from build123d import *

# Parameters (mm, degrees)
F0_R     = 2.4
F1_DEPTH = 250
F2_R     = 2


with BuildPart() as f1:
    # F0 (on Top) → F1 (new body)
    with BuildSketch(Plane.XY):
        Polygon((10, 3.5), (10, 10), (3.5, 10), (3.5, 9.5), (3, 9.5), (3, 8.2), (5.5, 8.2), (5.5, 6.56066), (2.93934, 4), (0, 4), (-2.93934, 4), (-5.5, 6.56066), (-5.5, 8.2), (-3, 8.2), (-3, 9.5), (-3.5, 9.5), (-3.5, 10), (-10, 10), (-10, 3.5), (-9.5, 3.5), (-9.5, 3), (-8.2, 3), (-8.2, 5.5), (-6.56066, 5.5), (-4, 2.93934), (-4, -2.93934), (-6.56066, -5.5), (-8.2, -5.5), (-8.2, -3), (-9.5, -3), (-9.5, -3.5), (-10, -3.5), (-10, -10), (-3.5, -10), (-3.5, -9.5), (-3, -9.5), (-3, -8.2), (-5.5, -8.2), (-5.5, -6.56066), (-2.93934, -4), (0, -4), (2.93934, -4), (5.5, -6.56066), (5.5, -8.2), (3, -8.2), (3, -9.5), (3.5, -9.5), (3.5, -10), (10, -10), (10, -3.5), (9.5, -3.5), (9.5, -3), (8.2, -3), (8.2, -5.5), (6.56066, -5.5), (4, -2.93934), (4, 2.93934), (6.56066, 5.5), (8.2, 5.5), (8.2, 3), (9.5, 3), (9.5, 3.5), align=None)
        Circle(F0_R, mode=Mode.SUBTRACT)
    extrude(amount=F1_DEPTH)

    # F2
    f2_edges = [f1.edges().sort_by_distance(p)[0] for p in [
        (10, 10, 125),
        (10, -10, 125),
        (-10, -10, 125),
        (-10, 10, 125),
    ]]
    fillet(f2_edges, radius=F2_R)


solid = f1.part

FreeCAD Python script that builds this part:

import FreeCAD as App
import Part
import Sketcher

V = App.Vector
Q = App.Units.Quantity


def edges_at(feature, points):
    """Names of the edges that pass closest to the given points."""
    edges = feature.Shape.Edges
    near = lambda p: min(range(len(edges)), key=lambda i: edges[i].distToShape(Part.Vertex(*p))[0])
    return sorted({f"Edge{near(p) + 1}" for p in points})

doc = App.newDocument("Part")
body = doc.addObject("PartDesign::Body", "Body")

sketch1 = body.newObject("Sketcher::SketchObject", "Sketch")
sketch1.AttachmentSupport = (doc.getObject("XY_Plane"), [""])
sketch1.MapMode = "FlatFace"
sketch1.addGeometry([
    Part.LineSegment(V(10, 3.5, 0), V(10, 10, 0)),
    Part.LineSegment(V(10, 10, 0), V(3.5, 10, 0)),
    Part.LineSegment(V(3.5, 10, 0), V(3.5, 9.5, 0)),
    Part.LineSegment(V(3.5, 9.5, 0), V(3, 9.5, 0)),
    Part.LineSegment(V(3, 9.5, 0), V(3, 8.2, 0)),
    Part.LineSegment(V(3, 8.2, 0), V(5.5, 8.2, 0)),
    Part.LineSegment(V(5.5, 8.2, 0), V(5.5, 6.56066, 0)),
    Part.LineSegment(V(5.5, 6.56066, 0), V(2.93934, 4, 0)),
    Part.LineSegment(V(2.93934, 4, 0), V(-2.93934, 4, 0)),
    Part.LineSegment(V(-2.93934, 4, 0), V(-5.5, 6.56066, 0)),
    Part.LineSegment(V(-5.5, 6.56066, 0), V(-5.5, 8.2, 0)),
    Part.LineSegment(V(-5.5, 8.2, 0), V(-3, 8.2, 0)),
    Part.LineSegment(V(-3, 8.2, 0), V(-3, 9.5, 0)),
    Part.LineSegment(V(-3, 9.5, 0), V(-3.5, 9.5, 0)),
    Part.LineSegment(V(-3.5, 9.5, 0), V(-3.5, 10, 0)),
    Part.LineSegment(V(-3.5, 10, 0), V(-10, 10, 0)),
    Part.LineSegment(V(-10, 10, 0), V(-10, 3.5, 0)),
    Part.LineSegment(V(-10, 3.5, 0), V(-9.5, 3.5, 0)),
    Part.LineSegment(V(-9.5, 3.5, 0), V(-9.5, 3, 0)),
    Part.LineSegment(V(-9.5, 3, 0), V(-8.2, 3, 0)),
    Part.LineSegment(V(-8.2, 3, 0), V(-8.2, 5.5, 0)),
    Part.LineSegment(V(-8.2, 5.5, 0), V(-6.56066, 5.5, 0)),
    Part.LineSegment(V(-6.56066, 5.5, 0), V(-4, 2.93934, 0)),
    Part.LineSegment(V(-4, 2.93934, 0), V(-4, -2.93934, 0)),
    Part.LineSegment(V(-4, -2.93934, 0), V(-6.56066, -5.5, 0)),
    Part.LineSegment(V(-6.56066, -5.5, 0), V(-8.2, -5.5, 0)),
    Part.LineSegment(V(-8.2, -5.5, 0), V(-8.2, -3, 0)),
    Part.LineSegment(V(-8.2, -3, 0), V(-9.5, -3, 0)),
    Part.LineSegment(V(-9.5, -3, 0), V(-9.5, -3.5, 0)),
    Part.LineSegment(V(-9.5, -3.5, 0), V(-10, -3.5, 0)),
    Part.LineSegment(V(-10, -3.5, 0), V(-10, -10, 0)),
    Part.LineSegment(V(-10, -10, 0), V(-3.5, -10, 0)),
    Part.LineSegment(V(-3.5, -10, 0), V(-3.5, -9.5, 0)),
    Part.LineSegment(V(-3.5, -9.5, 0), V(-3, -9.5, 0)),
    Part.LineSegment(V(-3, -9.5, 0), V(-3, -8.2, 0)),
    Part.LineSegment(V(-3, -8.2, 0), V(-5.5, -8.2, 0)),
    Part.LineSegment(V(-5.5, -8.2, 0), V(-5.5, -6.56066, 0)),
    Part.LineSegment(V(-5.5, -6.56066, 0), V(-2.93934, -4, 0)),
    Part.LineSegment(V(-2.93934, -4, 0), V(2.93934, -4, 0)),
    Part.LineSegment(V(2.93934, -4, 0), V(5.5, -6.56066, 0)),
    Part.LineSegment(V(5.5, -6.56066, 0), V(5.5, -8.2, 0)),
    Part.LineSegment(V(5.5, -8.2, 0), V(3, -8.2, 0)),
    Part.LineSegment(V(3, -8.2, 0), V(3, -9.5, 0)),
    Part.LineSegment(V(3, -9.5, 0), V(3.5, -9.5, 0)),
    Part.LineSegment(V(3.5, -9.5, 0), V(3.5, -10, 0)),
    Part.LineSegment(V(3.5, -10, 0), V(10, -10, 0)),
    Part.LineSegment(V(10, -10, 0), V(10, -3.5, 0)),
    Part.LineSegment(V(10, -3.5, 0), V(9.5, -3.5, 0)),
    Part.LineSegment(V(9.5, -3.5, 0), V(9.5, -3, 0)),
    Part.LineSegment(V(9.5, -3, 0), V(8.2, -3, 0)),
    Part.LineSegment(V(8.2, -3, 0), V(8.2, -5.5, 0)),
    Part.LineSegment(V(8.2, -5.5, 0), V(6.56066, -5.5, 0)),
    Part.LineSegment(V(6.56066, -5.5, 0), V(4, -2.93934, 0)),
    Part.LineSegment(V(4, -2.93934, 0), V(4, 2.93934, 0)),
    Part.LineSegment(V(4, 2.93934, 0), V(6.56066, 5.5, 0)),
    Part.LineSegment(V(6.56066, 5.5, 0), V(8.2, 5.5, 0)),
    Part.LineSegment(V(8.2, 5.5, 0), V(8.2, 3, 0)),
    Part.LineSegment(V(8.2, 3, 0), V(9.5, 3, 0)),
    Part.LineSegment(V(9.5, 3, 0), V(9.5, 3.5, 0)),
    Part.LineSegment(V(9.5, 3.5, 0), V(10, 3.5, 0)),
    Part.Circle(V(0, 0, 0), V(0, 0, 1), 2.4),
], False)
sketch1.addConstraint([
    Sketcher.Constraint("Coincident", 0, 2, 1, 1),
    Sketcher.Constraint("Coincident", 1, 2, 2, 1),
    Sketcher.Constraint("Coincident", 2, 2, 3, 1),
    Sketcher.Constraint("Coincident", 3, 2, 4, 1),
    Sketcher.Constraint("Coincident", 4, 2, 5, 1),
    Sketcher.Constraint("Coincident", 5, 2, 6, 1),
    Sketcher.Constraint("Coincident", 6, 2, 7, 1),
    Sketcher.Constraint("Coincident", 7, 2, 8, 1),
    Sketcher.Constraint("Coincident", 8, 2, 9, 1),
    Sketcher.Constraint("Coincident", 9, 2, 10, 1),
    Sketcher.Constraint("Coincident", 10, 2, 11, 1),
    Sketcher.Constraint("Coincident", 11, 2, 12, 1),
    Sketcher.Constraint("Coincident", 12, 2, 13, 1),
    Sketcher.Constraint("Coincident", 13, 2, 14, 1),
    Sketcher.Constraint("Coincident", 14, 2, 15, 1),
    Sketcher.Constraint("Coincident", 15, 2, 16, 1),
    Sketcher.Constraint("Coincident", 16, 2, 17, 1),
    Sketcher.Constraint("Coincident", 17, 2, 18, 1),
    Sketcher.Constraint("Coincident", 18, 2, 19, 1),
    Sketcher.Constraint("Coincident", 19, 2, 20, 1),
    Sketcher.Constraint("Coincident", 20, 2, 21, 1),
    Sketcher.Constraint("Coincident", 21, 2, 22, 1),
    Sketcher.Constraint("Coincident", 22, 2, 23, 1),
    Sketcher.Constraint("Coincident", 23, 2, 24, 1),
    Sketcher.Constraint("Coincident", 24, 2, 25, 1),
    Sketcher.Constraint("Coincident", 25, 2, 26, 1),
    Sketcher.Constraint("Coincident", 26, 2, 27, 1),
    Sketcher.Constraint("Coincident", 27, 2, 28, 1),
    Sketcher.Constraint("Coincident", 28, 2, 29, 1),
    Sketcher.Constraint("Coincident", 29, 2, 30, 1),
    Sketcher.Constraint("Coincident", 30, 2, 31, 1),
    Sketcher.Constraint("Coincident", 31, 2, 32, 1),
    Sketcher.Constraint("Coincident", 32, 2, 33, 1),
    Sketcher.Constraint("Coincident", 33, 2, 34, 1),
    Sketcher.Constraint("Coincident", 34, 2, 35, 1),
    Sketcher.Constraint("Coincident", 35, 2, 36, 1),
    Sketcher.Constraint("Coincident", 36, 2, 37, 1),
    Sketcher.Constraint("Coincident", 37, 2, 38, 1),
    Sketcher.Constraint("Coincident", 38, 2, 39, 1),
    Sketcher.Constraint("Coincident", 39, 2, 40, 1),
    Sketcher.Constraint("Coincident", 40, 2, 41, 1),
    Sketcher.Constraint("Coincident", 41, 2, 42, 1),
    Sketcher.Constraint("Coincident", 42, 2, 43, 1),
    Sketcher.Constraint("Coincident", 43, 2, 44, 1),
    Sketcher.Constraint("Coincident", 44, 2, 45, 1),
    Sketcher.Constraint("Coincident", 45, 2, 46, 1),
    Sketcher.Constraint("Coincident", 46, 2, 47, 1),
    Sketcher.Constraint("Coincident", 47, 2, 48, 1),
    Sketcher.Constraint("Coincident", 48, 2, 49, 1),
    Sketcher.Constraint("Coincident", 49, 2, 50, 1),
    Sketcher.Constraint("Coincident", 50, 2, 51, 1),
    Sketcher.Constraint("Coincident", 51, 2, 52, 1),
    Sketcher.Constraint("Coincident", 52, 2, 53, 1),
    Sketcher.Constraint("Coincident", 53, 2, 54, 1),
    Sketcher.Constraint("Coincident", 54, 2, 55, 1),
    Sketcher.Constraint("Coincident", 55, 2, 56, 1),
    Sketcher.Constraint("Coincident", 56, 2, 57, 1),
    Sketcher.Constraint("Coincident", 57, 2, 58, 1),
    Sketcher.Constraint("Coincident", 58, 2, 59, 1),
    Sketcher.Constraint("Coincident", 59, 2, 0, 1),
    Sketcher.Constraint("Vertical", 0),
    Sketcher.Constraint("Horizontal", 1),
    Sketcher.Constraint("Vertical", 2),
    Sketcher.Constraint("Horizontal", 3),
    Sketcher.Constraint("Vertical", 4),
    Sketcher.Constraint("Horizontal", 5),
    Sketcher.Constraint("Vertical", 6),
    Sketcher.Constraint("Horizontal", 8),
    Sketcher.Constraint("Vertical", 10),
    Sketcher.Constraint("Horizontal", 11),
    Sketcher.Constraint("Vertical", 12),
    Sketcher.Constraint("Horizontal", 13),
    Sketcher.Constraint("Vertical", 14),
    Sketcher.Constraint("Horizontal", 15),
    Sketcher.Constraint("Vertical", 16),
    Sketcher.Constraint("Horizontal", 17),
    Sketcher.Constraint("Vertical", 18),
    Sketcher.Constraint("Horizontal", 19),
    Sketcher.Constraint("Vertical", 20),
    Sketcher.Constraint("Horizontal", 21),
    Sketcher.Constraint("Vertical", 23),
    Sketcher.Constraint("Horizontal", 25),
    Sketcher.Constraint("Vertical", 26),
    Sketcher.Constraint("Horizontal", 27),
    Sketcher.Constraint("Vertical", 28),
    Sketcher.Constraint("Horizontal", 29),
    Sketcher.Constraint("Vertical", 30),
    Sketcher.Constraint("Horizontal", 31),
    Sketcher.Constraint("Vertical", 32),
    Sketcher.Constraint("Horizontal", 33),
    Sketcher.Constraint("Vertical", 34),
    Sketcher.Constraint("Horizontal", 35),
    Sketcher.Constraint("Vertical", 36),
    Sketcher.Constraint("Horizontal", 38),
    Sketcher.Constraint("Vertical", 40),
    Sketcher.Constraint("Horizontal", 41),
    Sketcher.Constraint("Vertical", 42),
    Sketcher.Constraint("Horizontal", 43),
    Sketcher.Constraint("Vertical", 44),
    Sketcher.Constraint("Horizontal", 45),
    Sketcher.Constraint("Vertical", 46),
    Sketcher.Constraint("Horizontal", 47),
    Sketcher.Constraint("Vertical", 48),
    Sketcher.Constraint("Horizontal", 49),
    Sketcher.Constraint("Vertical", 50),
    Sketcher.Constraint("Horizontal", 51),
    Sketcher.Constraint("Vertical", 53),
    Sketcher.Constraint("Horizontal", 55),
    Sketcher.Constraint("Vertical", 56),
    Sketcher.Constraint("Horizontal", 57),
    Sketcher.Constraint("Vertical", 58),
    Sketcher.Constraint("Horizontal", 59),
    Sketcher.Constraint("Coincident", 60, 3, -1, 1),
    Sketcher.Constraint("Symmetric", 0, 2, 30, 2, -1, 1),
    Sketcher.Constraint("Symmetric", 2, 2, 32, 2, -1, 1),
    Sketcher.Constraint("Symmetric", 4, 2, 34, 2, -1, 1),
    Sketcher.Constraint("Symmetric", 6, 2, 36, 2, -1, 1),
    Sketcher.Constraint("Symmetric", 7, 2, 37, 2, -1, 1),
    Sketcher.Constraint("Symmetric", 9, 2, 39, 2, -1, 1),
    Sketcher.Constraint("Symmetric", 11, 2, 41, 2, -1, 1),
    Sketcher.Constraint("Symmetric", 13, 2, 43, 2, -1, 1),
    Sketcher.Constraint("Symmetric", 15, 2, 45, 2, -1, 1),
    Sketcher.Constraint("Symmetric", 17, 2, 47, 2, -1, 1),
    Sketcher.Constraint("Symmetric", 19, 2, 49, 2, -1, 1),
    Sketcher.Constraint("Symmetric", 21, 2, 51, 2, -1, 1),
    Sketcher.Constraint("Symmetric", 22, 2, 52, 2, -1, 1),
    Sketcher.Constraint("Symmetric", 24, 2, 54, 2, -1, 1),
    Sketcher.Constraint("Symmetric", 26, 2, 56, 2, -1, 1),
    Sketcher.Constraint("Symmetric", 28, 2, 58, 2, -1, 1),
    Sketcher.Constraint("Symmetric", 6, 2, 9, 2, -2),
    Sketcher.Constraint("Symmetric", 4, 2, 11, 2, -2),
    Sketcher.Constraint("Symmetric", 2, 2, 13, 2, -2),
    Sketcher.Constraint("Symmetric", 0, 2, 15, 2, -2),
    Sketcher.Constraint("Symmetric", 28, 2, 47, 2, -2),
    Sketcher.Constraint("Symmetric", 26, 2, 49, 2, -2),
    Sketcher.Constraint("Symmetric", 24, 2, 51, 2, -2),
    Sketcher.Constraint("Perpendicular", 7, 9),
    Sketcher.Constraint("Parallel", 9, 22),
    Sketcher.Constraint("Perpendicular", 22, 24),
    Sketcher.Constraint("Perpendicular", 37, 39),
    Sketcher.Constraint("Perpendicular", 52, 54),
    Sketcher.Constraint("Horizontal", 23, 2, 52, 2),
    Sketcher.Constraint("Equal", 13, 17),
    Sketcher.Constraint("Equal", 45, 0),
    Sketcher.Constraint("Equal", 59, 2),
    Sketcher.Constraint("Equal", 57, 4),
    Sketcher.Constraint("Equal", 55, 6),
    Sketcher.Constraint("Equal", 14, 18),
    Sketcher.Constraint("Equal", 41, 20),
    Sketcher.Constraint("Equal", 38, 23),
    Sketcher.Constraint("Equal", 9, 22),
    Sketcher.Constraint("Diameter", 60, Q("4.8 mm")),
    Sketcher.Constraint("DistanceX", 1, 2, 1, 1, Q("6.5 mm")),
    Sketcher.Constraint("DistanceX", 3, 2, 3, 1, Q("0.5 mm")),
    Sketcher.Constraint("DistanceX", 5, 1, 5, 2, Q("2.5 mm")),
    Sketcher.Constraint("DistanceX", 19, 1, 19, 2, Q("1.3 mm")),
    Sketcher.Constraint("DistanceX", -1, 1, 0, 2, Q("10 mm")),
    Sketcher.Constraint("DistanceY", -1, 1, 7, 2, Q("4 mm")),
    Sketcher.Constraint("DistanceX", 8, 2, 8, 1, Q("5.87868 mm")),
])
pad1 = body.newObject("PartDesign::Pad", "Pad")
pad1.Profile = sketch1
pad1.Length = 250
doc.recompute()

fillet = body.newObject("PartDesign::Fillet", "Fillet")
fillet.Base = (pad1, edges_at(pad1, [
    (10, 10, 125),
    (10, -10, 125),
    (-10, -10, 125),
    (-10, 10, 125),
]))
fillet.Radius = 2

doc.recompute()
